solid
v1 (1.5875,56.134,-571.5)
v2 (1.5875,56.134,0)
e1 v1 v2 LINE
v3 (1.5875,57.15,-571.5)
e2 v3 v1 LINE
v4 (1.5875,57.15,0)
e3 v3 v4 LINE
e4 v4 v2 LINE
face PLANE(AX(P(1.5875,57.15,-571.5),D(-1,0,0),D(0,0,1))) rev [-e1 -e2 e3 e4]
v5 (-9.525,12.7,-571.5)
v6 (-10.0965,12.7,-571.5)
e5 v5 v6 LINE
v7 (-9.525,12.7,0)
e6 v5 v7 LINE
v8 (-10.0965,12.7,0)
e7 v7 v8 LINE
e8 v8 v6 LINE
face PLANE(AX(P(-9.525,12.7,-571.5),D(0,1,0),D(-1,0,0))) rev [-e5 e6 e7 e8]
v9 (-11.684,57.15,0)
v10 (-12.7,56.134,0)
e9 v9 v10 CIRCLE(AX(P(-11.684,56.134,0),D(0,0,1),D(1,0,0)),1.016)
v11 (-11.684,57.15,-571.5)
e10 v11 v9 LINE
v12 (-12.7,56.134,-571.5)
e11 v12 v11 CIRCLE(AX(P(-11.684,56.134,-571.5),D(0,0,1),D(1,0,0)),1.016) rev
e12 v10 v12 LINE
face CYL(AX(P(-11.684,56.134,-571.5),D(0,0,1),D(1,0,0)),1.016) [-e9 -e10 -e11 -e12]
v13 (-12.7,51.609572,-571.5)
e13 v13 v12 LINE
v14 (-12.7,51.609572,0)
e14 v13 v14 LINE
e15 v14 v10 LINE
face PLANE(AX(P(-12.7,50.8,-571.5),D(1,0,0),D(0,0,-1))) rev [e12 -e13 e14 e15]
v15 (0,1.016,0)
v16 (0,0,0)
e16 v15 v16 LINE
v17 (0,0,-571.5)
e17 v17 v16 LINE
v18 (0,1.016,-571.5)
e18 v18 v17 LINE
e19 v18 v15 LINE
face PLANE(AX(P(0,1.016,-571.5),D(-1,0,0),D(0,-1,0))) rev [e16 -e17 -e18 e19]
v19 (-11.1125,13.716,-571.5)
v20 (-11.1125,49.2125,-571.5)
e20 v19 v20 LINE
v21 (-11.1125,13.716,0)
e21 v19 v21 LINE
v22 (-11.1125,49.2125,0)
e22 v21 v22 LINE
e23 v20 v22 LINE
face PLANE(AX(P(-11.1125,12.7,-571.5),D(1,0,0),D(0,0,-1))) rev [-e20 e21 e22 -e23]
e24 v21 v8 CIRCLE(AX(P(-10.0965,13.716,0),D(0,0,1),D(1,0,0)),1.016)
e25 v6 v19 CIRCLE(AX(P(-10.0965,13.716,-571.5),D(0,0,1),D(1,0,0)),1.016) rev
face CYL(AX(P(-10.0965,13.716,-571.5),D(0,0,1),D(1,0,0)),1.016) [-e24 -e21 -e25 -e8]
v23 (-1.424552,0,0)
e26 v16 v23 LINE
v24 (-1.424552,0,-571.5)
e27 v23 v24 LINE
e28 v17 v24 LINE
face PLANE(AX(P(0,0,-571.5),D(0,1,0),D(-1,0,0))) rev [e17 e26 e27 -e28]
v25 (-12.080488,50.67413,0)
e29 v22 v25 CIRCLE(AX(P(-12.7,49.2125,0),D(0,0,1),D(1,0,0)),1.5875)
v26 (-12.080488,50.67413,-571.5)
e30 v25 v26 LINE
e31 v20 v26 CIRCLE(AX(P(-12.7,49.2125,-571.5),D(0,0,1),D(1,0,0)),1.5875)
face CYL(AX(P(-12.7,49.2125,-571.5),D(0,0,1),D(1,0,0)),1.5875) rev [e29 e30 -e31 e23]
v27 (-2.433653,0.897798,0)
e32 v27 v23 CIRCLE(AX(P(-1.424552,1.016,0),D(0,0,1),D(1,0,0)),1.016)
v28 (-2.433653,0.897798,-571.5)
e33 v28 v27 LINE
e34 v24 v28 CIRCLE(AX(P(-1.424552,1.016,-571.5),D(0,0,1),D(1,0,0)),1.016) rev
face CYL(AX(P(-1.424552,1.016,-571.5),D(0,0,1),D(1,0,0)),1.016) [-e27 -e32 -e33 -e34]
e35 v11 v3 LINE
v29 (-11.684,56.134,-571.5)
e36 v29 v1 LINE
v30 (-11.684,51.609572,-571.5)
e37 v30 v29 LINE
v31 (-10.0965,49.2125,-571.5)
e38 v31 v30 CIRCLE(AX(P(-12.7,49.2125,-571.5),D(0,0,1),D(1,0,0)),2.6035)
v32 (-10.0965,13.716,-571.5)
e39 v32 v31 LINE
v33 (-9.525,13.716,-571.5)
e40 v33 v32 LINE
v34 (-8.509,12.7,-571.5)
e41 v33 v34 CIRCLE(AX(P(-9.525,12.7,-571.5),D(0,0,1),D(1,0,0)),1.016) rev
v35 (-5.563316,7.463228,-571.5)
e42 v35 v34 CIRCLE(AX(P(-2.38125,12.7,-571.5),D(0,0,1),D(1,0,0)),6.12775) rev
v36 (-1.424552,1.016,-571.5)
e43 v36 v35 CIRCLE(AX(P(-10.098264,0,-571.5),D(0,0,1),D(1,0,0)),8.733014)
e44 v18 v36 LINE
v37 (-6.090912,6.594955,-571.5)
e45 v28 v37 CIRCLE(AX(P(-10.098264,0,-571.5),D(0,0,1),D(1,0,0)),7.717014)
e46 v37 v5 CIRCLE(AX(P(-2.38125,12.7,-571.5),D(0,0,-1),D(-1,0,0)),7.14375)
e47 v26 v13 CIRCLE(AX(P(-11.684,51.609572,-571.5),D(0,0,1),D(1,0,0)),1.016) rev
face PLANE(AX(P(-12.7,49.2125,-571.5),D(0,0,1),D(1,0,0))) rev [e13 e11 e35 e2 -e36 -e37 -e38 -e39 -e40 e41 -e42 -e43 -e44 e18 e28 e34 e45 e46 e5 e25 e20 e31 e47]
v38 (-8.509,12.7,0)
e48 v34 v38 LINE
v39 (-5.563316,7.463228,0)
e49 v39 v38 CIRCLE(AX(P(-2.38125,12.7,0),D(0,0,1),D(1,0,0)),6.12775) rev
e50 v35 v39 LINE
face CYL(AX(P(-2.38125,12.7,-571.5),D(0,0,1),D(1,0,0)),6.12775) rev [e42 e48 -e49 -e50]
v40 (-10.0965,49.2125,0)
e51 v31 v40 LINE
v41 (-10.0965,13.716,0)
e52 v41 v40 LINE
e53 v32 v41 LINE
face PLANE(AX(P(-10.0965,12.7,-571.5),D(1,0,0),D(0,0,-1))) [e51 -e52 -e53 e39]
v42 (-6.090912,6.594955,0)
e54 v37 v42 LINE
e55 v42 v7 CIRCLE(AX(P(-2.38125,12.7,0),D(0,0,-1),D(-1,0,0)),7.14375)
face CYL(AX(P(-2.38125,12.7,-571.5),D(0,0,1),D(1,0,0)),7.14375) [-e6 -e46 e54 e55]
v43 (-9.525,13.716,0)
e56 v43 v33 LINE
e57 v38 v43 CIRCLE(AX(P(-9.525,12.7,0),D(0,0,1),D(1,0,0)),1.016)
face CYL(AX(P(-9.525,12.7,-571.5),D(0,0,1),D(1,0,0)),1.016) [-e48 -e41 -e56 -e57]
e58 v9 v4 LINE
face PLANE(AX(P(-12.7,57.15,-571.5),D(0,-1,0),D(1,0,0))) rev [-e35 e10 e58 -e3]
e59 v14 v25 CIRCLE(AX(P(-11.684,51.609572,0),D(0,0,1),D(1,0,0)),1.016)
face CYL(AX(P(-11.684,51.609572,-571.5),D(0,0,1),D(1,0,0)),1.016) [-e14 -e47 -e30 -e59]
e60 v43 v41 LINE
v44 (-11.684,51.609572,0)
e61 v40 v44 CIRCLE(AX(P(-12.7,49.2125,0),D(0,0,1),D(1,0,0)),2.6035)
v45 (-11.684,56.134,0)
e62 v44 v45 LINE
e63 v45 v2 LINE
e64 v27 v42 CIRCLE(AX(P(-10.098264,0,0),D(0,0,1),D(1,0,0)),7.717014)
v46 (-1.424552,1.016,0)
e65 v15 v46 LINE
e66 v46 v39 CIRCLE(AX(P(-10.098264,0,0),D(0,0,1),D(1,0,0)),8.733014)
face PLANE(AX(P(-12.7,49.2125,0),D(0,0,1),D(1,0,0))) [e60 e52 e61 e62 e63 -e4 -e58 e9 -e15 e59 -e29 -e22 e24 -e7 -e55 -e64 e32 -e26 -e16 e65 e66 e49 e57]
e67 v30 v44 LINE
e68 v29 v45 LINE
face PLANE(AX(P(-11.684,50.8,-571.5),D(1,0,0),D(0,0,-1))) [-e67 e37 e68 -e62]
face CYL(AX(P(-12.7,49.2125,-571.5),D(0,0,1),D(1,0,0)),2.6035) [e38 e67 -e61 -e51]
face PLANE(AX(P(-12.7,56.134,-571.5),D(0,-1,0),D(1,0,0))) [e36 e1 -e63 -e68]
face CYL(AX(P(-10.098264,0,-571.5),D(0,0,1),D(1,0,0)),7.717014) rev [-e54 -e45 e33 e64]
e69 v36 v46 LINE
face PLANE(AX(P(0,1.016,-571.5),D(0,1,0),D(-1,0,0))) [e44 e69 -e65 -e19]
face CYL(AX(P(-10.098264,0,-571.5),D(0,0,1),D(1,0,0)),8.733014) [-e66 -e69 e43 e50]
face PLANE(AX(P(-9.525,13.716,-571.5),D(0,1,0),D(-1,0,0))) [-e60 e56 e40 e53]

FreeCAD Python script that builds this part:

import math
import FreeCAD as App
import Part
import Sketcher

V = App.Vector
Q = App.Units.Quantity


def edges_at(feature, points):
    """Names of the edges that pass closest to the given points."""
    edges = feature.Shape.Edges
    near = lambda p: min(range(len(edges)), key=lambda i: edges[i].distToShape(Part.Vertex(*p))[0])
    return sorted({f"Edge{near(p) + 1}" for p in points})

doc = App.newDocument("Part")
params = doc.addObject("Spreadsheet::Sheet", "Params")
for row, (alias, value) in enumerate([
    ("sketch1_radius", "0.0625 in"),
    ("sketch1_radius2", "0.28125 in"),
    ("sketch1_height", "0.04 in"),
    ("sketch1_height2", "0.25 in"),
    ("sketch1_width", "0.09375 in"),
    ("pad1_length", "22.5 in"),
    ("fillet_radius", "0.04 in"),
], start=1):
    params.set(f"A{row}", alias)
    params.set(f"B{row}", "=" + value)
    params.setAlias(f"B{row}", alias)

body = doc.addObject("PartDesign::Body", "Body")

# Sketch on XY plane
sketch1 = body.newObject("Sketcher::SketchObject", "Sketch")
sketch1.AttachmentSupport = (doc.getObject("XY_Plane"), [""])
sketch1.MapMode = "FlatFace"
sketch1.addGeometry([
    Part.LineSegment(V(-2.4, 0, 0), V(0, 0, 0)),  # 0
    Part.LineSegment(V(0, 0, 0), V(0, 1, 0)),  # 1
    Part.LineSegment(V(0, 1, 0), V(-1.4, 1, 0)),  # 2
    Part.ArcOfCircle(Part.Circle(V(-10.1, 0, 0), V(0, 0, 1), 8.7), math.radians(7), math.radians(59)),  # 3
    Part.ArcOfCircle(Part.Circle(V(-2.4, 12.7, 0), V(0, 0, 1), 6.1), math.radians(170), math.radians(239)),  # 4
    Part.LineSegment(V(-8.4, 13.7, 0), V(-10.1, 13.7, 0)),  # 5
    Part.LineSegment(V(-10.1, 13.7, 0), V(-10.1, 49.2, 0)),  # 6
    Part.ArcOfCircle(Part.Circle(V(-12.7, 49.2, 0), V(0, 0, 1), 2.6), math.radians(0), math.radians(67)),  # 7
    Part.LineSegment(V(-11.7, 51.6, 0), V(-11.7, 56.1, 0)),  # 8
    Part.LineSegment(V(-11.7, 56.1, 0), V(1.6, 56.1, 0)),  # 9
    Part.LineSegment(V(1.6, 56.1, 0), V(1.6, 57.1, 0)),  # 10
    Part.LineSegment(V(1.6, 57.1, 0), V(-12.7, 57.1, 0)),  # 11
    Part.LineSegment(V(-12.7, 57.1, 0), V(-12.7, 50.8, 0)),  # 12
    Part.ArcOfCircle(Part.Circle(V(-12.7, 49.2, 0), V(0, 0, 1), 1.6), math.radians(0), math.radians(90)),  # 13
    Part.LineSegment(V(-11.1, 49.2, 0), V(-11.1, 12.7, 0)),  # 14
    Part.LineSegment(V(-11.1, 12.7, 0), V(-9.5, 12.7, 0)),  # 15
    Part.ArcOfCircle(Part.Circle(V(-2.4, 12.7, 0), V(0, 0, 1), 7.1), math.radians(180), math.radians(239)),  # 16
    Part.ArcOfCircle(Part.Circle(V(-10.1, 0, 0), V(0, 0, 1), 7.7), math.radians(0), math.radians(59)),  # 17
], False)
sketch1.addConstraint([
    Sketcher.Constraint("Coincident", 0, 2, 1, 1),
    Sketcher.Constraint("Coincident", 1, 2, 2, 1),
    Sketcher.Constraint("Coincident", 2, 2, 3, 1),
    Sketcher.Constraint("Tangent", 3, 2, 4, 2),
    Sketcher.Constraint("Coincident", 4, 1, 5, 1),
    Sketcher.Constraint("Coincident", 5, 2, 6, 1),
    Sketcher.Constraint("Tangent", 6, 2, 7, 1),
    Sketcher.Constraint("Coincident", 7, 2, 8, 1),
    Sketcher.Constraint("Coincident", 8, 2, 9, 1),
    Sketcher.Constraint("Coincident", 9, 2, 10, 1),
    Sketcher.Constraint("Coincident", 10, 2, 11, 1),
    Sketcher.Constraint("Coincident", 11, 2, 12, 1),
    Sketcher.Constraint("Coincident", 12, 2, 13, 2),
    Sketcher.Constraint("Tangent", 13, 1, 14, 1),
    Sketcher.Constraint("Coincident", 14, 2, 15, 1),
    Sketcher.Constraint("Coincident", 15, 2, 16, 1),
    Sketcher.Constraint("Tangent", 16, 2, 17, 2),
    Sketcher.Constraint("Coincident", 17, 1, 0, 1),
    Sketcher.Constraint("Horizontal", 0),
    Sketcher.Constraint("Vertical", 1),
    Sketcher.Constraint("Horizontal", 2),
    Sketcher.Constraint("Horizontal", 5),
    Sketcher.Constraint("Vertical", 6),
    Sketcher.Constraint("Vertical", 8),
    Sketcher.Constraint("Horizontal", 9),
    Sketcher.Constraint("Vertical", 10),
    Sketcher.Constraint("Horizontal", 11),
    Sketcher.Constraint("Vertical", 12),
    Sketcher.Constraint("Vertical", 14),
    Sketcher.Constraint("Horizontal", 15),
    Sketcher.Constraint("Coincident", 0, 2, -1, 1),
    Sketcher.Constraint("Coincident", 13, 3, 7, 3),
    Sketcher.Constraint("Coincident", 16, 3, 4, 3),
    Sketcher.Constraint("Coincident", 17, 3, 3, 3),
    Sketcher.Constraint("PointOnObject", 3, 3, -1),
    Sketcher.Constraint("Horizontal", 16, 3, 14, 2),
    Sketcher.Constraint("Vertical", 13, 3, 11, 2),
    Sketcher.Constraint("Vertical", 16, 3, 17, 1),
    Sketcher.Constraint("Equal", 1, 10),
    Sketcher.Constraint("DistanceY", -1, 1, 12, 2, Q("2 in")),
    Sketcher.Constraint("Radius", 13, Q("0.0625 in")),
    Sketcher.Constraint("Radius", 16, Q("0.28125 in")),
    Sketcher.Constraint("DistanceY", 1, 1, 1, 2, Q("0.04 in")),
    Sketcher.Constraint("DistanceY", 12, 2, 12, 1, Q("0.25 in")),
    Sketcher.Constraint("DistanceY", -1, 1, 4, 3, Q("0.5 in")),
    Sketcher.Constraint("DistanceX", 7, 3, -1, 1, Q("0.5 in")),
    Sketcher.Constraint("Radius", 7, Q("0.1025 in")),
    Sketcher.Constraint("DistanceX", 0, 1, 0, 2, Q("0.09375 in")),
    Sketcher.Constraint("DistanceX", 11, 2, 11, 1, Q("0.5625 in")),
    Sketcher.Constraint("DistanceY", -1, 1, 4, 1, Q("0.54 in")),
    Sketcher.Constraint("DistanceX", 7, 2, -1, 1, Q("0.46 in")),
    Sketcher.Constraint("Radius", 4, Q("6.12775 mm")),
])
sketch1.setExpression("Constraints[40]", "Params.sketch1_radius")
sketch1.setExpression("Constraints[41]", "Params.sketch1_radius2")
sketch1.setExpression("Constraints[42]", "Params.sketch1_height")
sketch1.setExpression("Constraints[43]", "Params.sketch1_height2")
sketch1.setExpression("Constraints[47]", "Params.sketch1_width")
pad1 = body.newObject("PartDesign::Pad", "Pad")
pad1.Profile = sketch1
pad1.setExpression("Length", "Params.pad1_length")
pad1.Reversed = True
doc.recompute()

fillet = body.newObject("PartDesign::Fillet", "Fillet")
fillet.Base = (pad1, edges_at(pad1, [
    (-8.424, 13.716, -285.75),
    (-2.381, 0, -285.75),
    (-11.113, 12.7, -285.75),
    (-12.7, 50.8, -285.75),
    (-12.7, 57.15, -285.75),
]))
fillet.setExpression("Radius", "Params.fillet_radius")

doc.recompute()
